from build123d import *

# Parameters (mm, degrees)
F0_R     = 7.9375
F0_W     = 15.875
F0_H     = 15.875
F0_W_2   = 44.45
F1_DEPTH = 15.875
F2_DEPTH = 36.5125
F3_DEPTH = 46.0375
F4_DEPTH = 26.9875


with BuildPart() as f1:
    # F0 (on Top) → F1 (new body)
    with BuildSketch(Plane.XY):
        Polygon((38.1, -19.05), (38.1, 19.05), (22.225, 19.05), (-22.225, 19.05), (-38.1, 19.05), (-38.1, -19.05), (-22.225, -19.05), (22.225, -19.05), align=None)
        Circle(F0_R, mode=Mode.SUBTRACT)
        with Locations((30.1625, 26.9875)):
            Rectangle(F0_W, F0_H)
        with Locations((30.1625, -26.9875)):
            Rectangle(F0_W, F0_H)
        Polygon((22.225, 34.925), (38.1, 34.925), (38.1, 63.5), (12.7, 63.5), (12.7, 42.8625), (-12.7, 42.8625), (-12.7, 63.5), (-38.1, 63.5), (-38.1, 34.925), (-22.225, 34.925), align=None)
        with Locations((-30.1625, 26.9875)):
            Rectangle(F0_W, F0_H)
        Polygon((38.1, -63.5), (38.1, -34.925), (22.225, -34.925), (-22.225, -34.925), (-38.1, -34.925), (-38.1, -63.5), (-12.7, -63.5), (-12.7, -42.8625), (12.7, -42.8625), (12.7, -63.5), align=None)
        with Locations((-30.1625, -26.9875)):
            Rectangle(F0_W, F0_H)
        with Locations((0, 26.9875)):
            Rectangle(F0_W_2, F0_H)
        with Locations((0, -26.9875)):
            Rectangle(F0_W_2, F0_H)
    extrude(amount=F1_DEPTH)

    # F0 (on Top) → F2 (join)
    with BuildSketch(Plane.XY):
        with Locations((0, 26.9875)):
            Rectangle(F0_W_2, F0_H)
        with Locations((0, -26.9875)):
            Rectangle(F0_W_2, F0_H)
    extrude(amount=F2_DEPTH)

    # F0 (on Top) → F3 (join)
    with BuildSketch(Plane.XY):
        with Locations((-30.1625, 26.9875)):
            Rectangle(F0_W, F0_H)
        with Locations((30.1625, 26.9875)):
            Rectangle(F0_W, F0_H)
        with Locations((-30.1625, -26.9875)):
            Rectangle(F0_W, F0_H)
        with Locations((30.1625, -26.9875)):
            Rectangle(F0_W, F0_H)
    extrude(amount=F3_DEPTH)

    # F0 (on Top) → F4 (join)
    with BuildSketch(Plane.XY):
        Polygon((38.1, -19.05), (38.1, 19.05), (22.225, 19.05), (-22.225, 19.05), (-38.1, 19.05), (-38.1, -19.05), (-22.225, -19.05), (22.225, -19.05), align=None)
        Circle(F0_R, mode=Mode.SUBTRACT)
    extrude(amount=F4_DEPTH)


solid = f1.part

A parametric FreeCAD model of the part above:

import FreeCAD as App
import Part
import Sketcher
Q = App.Units.Quantity

doc = App.newDocument("Part")
body = doc.addObject("PartDesign::Body", "Body")

# Sketch on XY plane
sketch1 = body.newObject("Sketcher::SketchObject", "Sketch")
sketch1.AttachmentSupport = (doc.getObject("XY_Plane"), [""])
sketch1.MapMode = "FlatFace"
sketch1.addGeometry([
    Part.LineSegment(App.Vector(-38, -64, 0), App.Vector(-13, -64, 0)),  # 0
    Part.LineSegment(App.Vector(-13, -64, 0), App.Vector(-13, -43, 0)),  # 1
    Part.LineSegment(App.Vector(-13, -43, 0), App.Vector(13, -43, 0)),  # 2
    Part.LineSegment(App.Vector(13, -43, 0), App.Vector(13, -64, 0)),  # 3
    Part.LineSegment(App.Vector(13, -64, 0), App.Vector(38, -64, 0)),  # 4
    Part.LineSegment(App.Vector(38, -64, 0), App.Vector(38, 64, 0)),  # 5
    Part.LineSegment(App.Vector(38, 64, 0), App.Vector(13, 64, 0)),  # 6
    Part.LineSegment(App.Vector(13, 64, 0), App.Vector(13, 43, 0)),  # 7
    Part.LineSegment(App.Vector(13, 43, 0), App.Vector(-13, 43, 0)),  # 8
    Part.LineSegment(App.Vector(-13, 43, 0), App.Vector(-13, 64, 0)),  # 9
    Part.LineSegment(App.Vector(-13, 64, 0), App.Vector(-38, 64, 0)),  # 10
    Part.LineSegment(App.Vector(-38, 64, 0), App.Vector(-38, -64, 0)),  # 11
    Part.Circle(App.Vector(0, 0, 0), App.Vector(0, 0, 1), 8),  # 12
], False)
sketch1.addConstraint([
    Sketcher.Constraint("Coincident", 0, 2, 1, 1),
    Sketcher.Constraint("Coincident", 1, 2, 2, 1),
    Sketcher.Constraint("Coincident", 2, 2, 3, 1),
    Sketcher.Constraint("Coincident", 3, 2, 4, 1),
    Sketcher.Constraint("Coincident", 4, 2, 5, 1),
    Sketcher.Constraint("Coincident", 5, 2, 6, 1),
    Sketcher.Constraint("Coincident", 6, 2, 7, 1),
    Sketcher.Constraint("Coincident", 7, 2, 8, 1),
    Sketcher.Constraint("Coincident", 8, 2, 9, 1),
    Sketcher.Constraint("Coincident", 9, 2, 10, 1),
    Sketcher.Constraint("Coincident", 10, 2, 11, 1),
    Sketcher.Constraint("Coincident", 11, 2, 0, 1),
    Sketcher.Constraint("Horizontal", 0),
    Sketcher.Constraint("Vertical", 1),
    Sketcher.Constraint("Horizontal", 2),
    Sketcher.Constraint("Vertical", 3),
    Sketcher.Constraint("Horizontal", 4),
    Sketcher.Constraint("Vertical", 5),
    Sketcher.Constraint("Horizontal", 6),
    Sketcher.Constraint("Vertical", 7),
    Sketcher.Constraint("Horizontal", 8),
    Sketcher.Constraint("Vertical", 9),
    Sketcher.Constraint("Horizontal", 10),
    Sketcher.Constraint("Vertical", 11),
    Sketcher.Constraint("Coincident", 12, 3, -1, 1),
    Sketcher.Constraint("Symmetric", 0, 2, 6, 2, -1, 1),
    Sketcher.Constraint("Symmetric", 2, 2, 8, 2, -1, 1),
    Sketcher.Constraint("Symmetric", 4, 2, 10, 2, -1, 1),
    Sketcher.Constraint("Symmetric", 0, 2, 3, 2, -2),
    Sketcher.Constraint("Equal", 0, 2),
    Sketcher.Constraint("DistanceX", 0, 1, 0, 2, Q("1 in")),
    Sketcher.Constraint("DistanceY", 5, 1, 5, 2, Q("5 in")),
    Sketcher.Constraint("Diameter", 12, Q("0.625 in")),
    Sketcher.Constraint("DistanceY", 1, 1, 1, 2, Q("0.8125 in")),
])
pad1 = body.newObject("PartDesign::Pad", "Pad")
pad1.Profile = sketch1
pad1.Length = Q("0.625 in")

# Sketch on XY plane
sketch2 = body.newObject("Sketcher::SketchObject", "Sketch001")
sketch2.AttachmentSupport = (doc.getObject("XY_Plane"), [""])
sketch2.MapMode = "FlatFace"
sketch2.addGeometry([
    Part.LineSegment(App.Vector(-22, 35, 0), App.Vector(-22, 19, 0)),  # 0
    Part.LineSegment(App.Vector(-22, 19, 0), App.Vector(22, 19, 0)),  # 1
    Part.LineSegment(App.Vector(22, 19, 0), App.Vector(22, 35, 0)),  # 2
    Part.LineSegment(App.Vector(22, 35, 0), App.Vector(-22, 35, 0)),  # 3
    Part.LineSegment(App.Vector(-22, -19, 0), App.Vector(-22, -35, 0)),  # 4
    Part.LineSegment(App.Vector(-22, -35, 0), App.Vector(22, -35, 0)),  # 5
    Part.LineSegment(App.Vector(22, -35, 0), App.Vector(22, -19, 0)),  # 6
    Part.LineSegment(App.Vector(22, -19, 0), App.Vector(-22, -19, 0)),  # 7
], False)
sketch2.addConstraint([
    Sketcher.Constraint("Coincident", 0, 2, 1, 1),
    Sketcher.Constraint("Coincident", 1, 2, 2, 1),
    Sketcher.Constraint("Coincident", 2, 2, 3, 1),
    Sketcher.Constraint("Coincident", 3, 2, 0, 1),
    Sketcher.Constraint("Coincident", 4, 2, 5, 1),
    Sketcher.Constraint("Coincident", 5, 2, 6, 1),
    Sketcher.Constraint("Coincident", 6, 2, 7, 1),
    Sketcher.Constraint("Coincident", 7, 2, 4, 1),
    Sketcher.Constraint("Vertical", 0),
    Sketcher.Constraint("Horizontal", 1),
    Sketcher.Constraint("Vertical", 2),
    Sketcher.Constraint("Horizontal", 3),
    Sketcher.Constraint("Vertical", 4),
    Sketcher.Constraint("Horizontal", 5),
    Sketcher.Constraint("Vertical", 6),
    Sketcher.Constraint("Horizontal", 7),
    Sketcher.Constraint("Symmetric", 2, 2, 4, 2, -1, 1),
    Sketcher.Constraint("Symmetric", 0, 2, 6, 2, -1, 1),
    Sketcher.Constraint("Vertical", 3, 2, 4, 2),
    Sketcher.Constraint("DistanceX", 1, 1, 1, 2, Q("1.75 in")),
    Sketcher.Constraint("DistanceY", 6, 2, 1, 2, Q("1.5 in")),
    Sketcher.Constraint("DistanceY", 0, 2, 0, 1, Q("0.625 in")),
])
pad2 = body.newObject("PartDesign::Pad", "Pad001")
pad2.Profile = sketch2
pad2.Length = Q("1.4375 in")

# Sketch on XY plane
sketch3 = body.newObject("Sketcher::SketchObject", "Sketch002")
sketch3.AttachmentSupport = (doc.getObject("XY_Plane"), [""])
sketch3.MapMode = "FlatFace"
sketch3.addGeometry([
    Part.LineSegment(App.Vector(-38, 35, 0), App.Vector(-38, 19, 0)),  # 0
    Part.LineSegment(App.Vector(-38, 19, 0), App.Vector(-22, 19, 0)),  # 1
    Part.LineSegment(App.Vector(-22, 19, 0), App.Vector(-22, 35, 0)),  # 2
    Part.LineSegment(App.Vector(-22, 35, 0), App.Vector(-38, 35, 0)),  # 3
    Part.LineSegment(App.Vector(22, 35, 0), App.Vector(22, 19, 0)),  # 4
    Part.LineSegment(App.Vector(22, 19, 0), App.Vector(38, 19, 0)),  # 5
    Part.LineSegment(App.Vector(38, 19, 0), App.Vector(38, 35, 0)),  # 6
    Part.LineSegment(App.Vector(38, 35, 0), App.Vector(22, 35, 0)),  # 7
    Part.LineSegment(App.Vector(-38, -19, 0), App.Vector(-38, -35, 0)),  # 8
    Part.LineSegment(App.Vector(-38, -35, 0), App.Vector(-22, -35, 0)),  # 9
    Part.LineSegment(App.Vector(-22, -35, 0), App.Vector(-22, -19, 0)),  # 10
    Part.LineSegment(App.Vector(-22, -19, 0), App.Vector(-38, -19, 0)),  # 11
    Part.LineSegment(App.Vector(22, -19, 0), App.Vector(22, -35, 0)),  # 12
    Part.LineSegment(App.Vector(22, -35, 0), App.Vector(38, -35, 0)),  # 13
    Part.LineSegment(App.Vector(38, -35, 0), App.Vector(38, -19, 0)),  # 14
    Part.LineSegment(App.Vector(38, -19, 0), App.Vector(22, -19, 0)),  # 15
], False)
sketch3.addConstraint([
    Sketcher.Constraint("Coincident", 0, 2, 1, 1),
    Sketcher.Constraint("Coincident", 1, 2, 2, 1),
    Sketcher.Constraint("Coincident", 2, 2, 3, 1),
    Sketcher.Constraint("Coincident", 3, 2, 0, 1),
    Sketcher.Constraint("Coincident", 4, 2, 5, 1),
    Sketcher.Constraint("Coincident", 5, 2, 6, 1),
    Sketcher.Constraint("Coincident", 6, 2, 7, 1),
    Sketcher.Constraint("Coincident", 7, 2, 4, 1),
    Sketcher.Constraint("Coincident", 8, 2, 9, 1),
    Sketcher.Constraint("Coincident", 9, 2, 10, 1),
    Sketcher.Constraint("Coincident", 10, 2, 11, 1),
    Sketcher.Constraint("Coincident", 11, 2, 8, 1),
    Sketcher.Constraint("Coincident", 12, 2, 13, 1),
    Sketcher.Constraint("Coincident", 13, 2, 14, 1),
    Sketcher.Constraint("Coincident", 14, 2, 15, 1),
    Sketcher.Constraint("Coincident", 15, 2, 12, 1),
    Sketcher.Constraint("Vertical", 0),
    Sketcher.Constraint("Horizontal", 1),
    Sketcher.Constraint("Vertical", 2),
    Sketcher.Constraint("Horizontal", 3),
    Sketcher.Constraint("Vertical", 4),
    Sketcher.Constraint("Horizontal", 5),
    Sketcher.Constraint("Vertical", 6),
    Sketcher.Constraint("Horizontal", 7),
    Sketcher.Constraint("Vertical", 8),
    Sketcher.Constraint("Horizontal", 9),
    Sketcher.Constraint("Vertical", 10),
    Sketcher.Constraint("Horizontal", 11),
    Sketcher.Constraint("Vertical", 12),
    Sketcher.Constraint("Horizontal", 13),
    Sketcher.Constraint("Vertical", 14),
    Sketcher.Constraint("Horizontal", 15),
    Sketcher.Constraint("Symmetric", 6, 2, 8, 2, -1, 1),
    Sketcher.Constraint("Symmetric", 4, 2, 10, 2, -1, 1),
    Sketcher.Constraint("Symmetric", 2, 2, 12, 2, -1, 1),
    Sketcher.Constraint("Symmetric", 0, 2, 14, 2, -1, 1),
    Sketcher.Constraint("Symmetric", 1, 2, 4, 2, -2),
    Sketcher.Constraint("Symmetric", 3, 2, 6, 2, -2),
    Sketcher.Constraint("Equal", 15, 0),
    Sketcher.Constraint("DistanceX", 0, 2, 5, 2, Q("3 in")),
    Sketcher.Constraint("DistanceY", 10, 2, 1, 2, Q("1.5 in")),
    Sketcher.Constraint("DistanceX", 1, 1, 1, 2, Q("0.625 in")),
])
pad3 = body.newObject("PartDesign::Pad", "Pad002")
pad3.Profile = sketch3
pad3.Length = Q("1.8125 in")

# Sketch on XY plane
sketch4 = body.newObject("Sketcher::SketchObject", "Sketch003")
sketch4.AttachmentSupport = (doc.getObject("XY_Plane"), [""])
sketch4.MapMode = "FlatFace"
sketch4.addGeometry([
    Part.LineSegment(App.Vector(38, -19, 0), App.Vector(38, 19, 0)),  # 0
    Part.LineSegment(App.Vector(38, 19, 0), App.Vector(-38, 19, 0)),  # 1
    Part.LineSegment(App.Vector(-38, 19, 0), App.Vector(-38, -19, 0)),  # 2
    Part.LineSegment(App.Vector(-38, -19, 0), App.Vector(38, -19, 0)),  # 3
    Part.Circle(App.Vector(0, 0, 0), App.Vector(0, 0, 1), 8),  # 4
], False)
sketch4.addConstraint([
    Sketcher.Constraint("Coincident", 0, 2, 1, 1),
    Sketcher.Constraint("Coincident", 1, 2, 2, 1),
    Sketcher.Constraint("Coincident", 2, 2, 3, 1),
    Sketcher.Constraint("Coincident", 3, 2, 0, 1),
    Sketcher.Constraint("Vertical", 0),
    Sketcher.Constraint("Horizontal", 1),
    Sketcher.Constraint("Vertical", 2),
    Sketcher.Constraint("Horizontal", 3),
    Sketcher.Constraint("Coincident", 4, 3, -1, 1),
    Sketcher.Constraint("Symmetric", 0, 2, 2, 2, -1, 1),
    Sketcher.Constraint("DistanceX", 1, 2, 1, 1, Q("3 in")),
    Sketcher.Constraint("Diameter", 4, Q("0.625 in")),
    Sketcher.Constraint("DistanceY", 0, 1, 0, 2, Q("1.5 in")),
])
pad4 = body.newObject("PartDesign::Pad", "Pad003")
pad4.Profile = sketch4
pad4.Length = Q("1.0625 in")

doc.recompute()
